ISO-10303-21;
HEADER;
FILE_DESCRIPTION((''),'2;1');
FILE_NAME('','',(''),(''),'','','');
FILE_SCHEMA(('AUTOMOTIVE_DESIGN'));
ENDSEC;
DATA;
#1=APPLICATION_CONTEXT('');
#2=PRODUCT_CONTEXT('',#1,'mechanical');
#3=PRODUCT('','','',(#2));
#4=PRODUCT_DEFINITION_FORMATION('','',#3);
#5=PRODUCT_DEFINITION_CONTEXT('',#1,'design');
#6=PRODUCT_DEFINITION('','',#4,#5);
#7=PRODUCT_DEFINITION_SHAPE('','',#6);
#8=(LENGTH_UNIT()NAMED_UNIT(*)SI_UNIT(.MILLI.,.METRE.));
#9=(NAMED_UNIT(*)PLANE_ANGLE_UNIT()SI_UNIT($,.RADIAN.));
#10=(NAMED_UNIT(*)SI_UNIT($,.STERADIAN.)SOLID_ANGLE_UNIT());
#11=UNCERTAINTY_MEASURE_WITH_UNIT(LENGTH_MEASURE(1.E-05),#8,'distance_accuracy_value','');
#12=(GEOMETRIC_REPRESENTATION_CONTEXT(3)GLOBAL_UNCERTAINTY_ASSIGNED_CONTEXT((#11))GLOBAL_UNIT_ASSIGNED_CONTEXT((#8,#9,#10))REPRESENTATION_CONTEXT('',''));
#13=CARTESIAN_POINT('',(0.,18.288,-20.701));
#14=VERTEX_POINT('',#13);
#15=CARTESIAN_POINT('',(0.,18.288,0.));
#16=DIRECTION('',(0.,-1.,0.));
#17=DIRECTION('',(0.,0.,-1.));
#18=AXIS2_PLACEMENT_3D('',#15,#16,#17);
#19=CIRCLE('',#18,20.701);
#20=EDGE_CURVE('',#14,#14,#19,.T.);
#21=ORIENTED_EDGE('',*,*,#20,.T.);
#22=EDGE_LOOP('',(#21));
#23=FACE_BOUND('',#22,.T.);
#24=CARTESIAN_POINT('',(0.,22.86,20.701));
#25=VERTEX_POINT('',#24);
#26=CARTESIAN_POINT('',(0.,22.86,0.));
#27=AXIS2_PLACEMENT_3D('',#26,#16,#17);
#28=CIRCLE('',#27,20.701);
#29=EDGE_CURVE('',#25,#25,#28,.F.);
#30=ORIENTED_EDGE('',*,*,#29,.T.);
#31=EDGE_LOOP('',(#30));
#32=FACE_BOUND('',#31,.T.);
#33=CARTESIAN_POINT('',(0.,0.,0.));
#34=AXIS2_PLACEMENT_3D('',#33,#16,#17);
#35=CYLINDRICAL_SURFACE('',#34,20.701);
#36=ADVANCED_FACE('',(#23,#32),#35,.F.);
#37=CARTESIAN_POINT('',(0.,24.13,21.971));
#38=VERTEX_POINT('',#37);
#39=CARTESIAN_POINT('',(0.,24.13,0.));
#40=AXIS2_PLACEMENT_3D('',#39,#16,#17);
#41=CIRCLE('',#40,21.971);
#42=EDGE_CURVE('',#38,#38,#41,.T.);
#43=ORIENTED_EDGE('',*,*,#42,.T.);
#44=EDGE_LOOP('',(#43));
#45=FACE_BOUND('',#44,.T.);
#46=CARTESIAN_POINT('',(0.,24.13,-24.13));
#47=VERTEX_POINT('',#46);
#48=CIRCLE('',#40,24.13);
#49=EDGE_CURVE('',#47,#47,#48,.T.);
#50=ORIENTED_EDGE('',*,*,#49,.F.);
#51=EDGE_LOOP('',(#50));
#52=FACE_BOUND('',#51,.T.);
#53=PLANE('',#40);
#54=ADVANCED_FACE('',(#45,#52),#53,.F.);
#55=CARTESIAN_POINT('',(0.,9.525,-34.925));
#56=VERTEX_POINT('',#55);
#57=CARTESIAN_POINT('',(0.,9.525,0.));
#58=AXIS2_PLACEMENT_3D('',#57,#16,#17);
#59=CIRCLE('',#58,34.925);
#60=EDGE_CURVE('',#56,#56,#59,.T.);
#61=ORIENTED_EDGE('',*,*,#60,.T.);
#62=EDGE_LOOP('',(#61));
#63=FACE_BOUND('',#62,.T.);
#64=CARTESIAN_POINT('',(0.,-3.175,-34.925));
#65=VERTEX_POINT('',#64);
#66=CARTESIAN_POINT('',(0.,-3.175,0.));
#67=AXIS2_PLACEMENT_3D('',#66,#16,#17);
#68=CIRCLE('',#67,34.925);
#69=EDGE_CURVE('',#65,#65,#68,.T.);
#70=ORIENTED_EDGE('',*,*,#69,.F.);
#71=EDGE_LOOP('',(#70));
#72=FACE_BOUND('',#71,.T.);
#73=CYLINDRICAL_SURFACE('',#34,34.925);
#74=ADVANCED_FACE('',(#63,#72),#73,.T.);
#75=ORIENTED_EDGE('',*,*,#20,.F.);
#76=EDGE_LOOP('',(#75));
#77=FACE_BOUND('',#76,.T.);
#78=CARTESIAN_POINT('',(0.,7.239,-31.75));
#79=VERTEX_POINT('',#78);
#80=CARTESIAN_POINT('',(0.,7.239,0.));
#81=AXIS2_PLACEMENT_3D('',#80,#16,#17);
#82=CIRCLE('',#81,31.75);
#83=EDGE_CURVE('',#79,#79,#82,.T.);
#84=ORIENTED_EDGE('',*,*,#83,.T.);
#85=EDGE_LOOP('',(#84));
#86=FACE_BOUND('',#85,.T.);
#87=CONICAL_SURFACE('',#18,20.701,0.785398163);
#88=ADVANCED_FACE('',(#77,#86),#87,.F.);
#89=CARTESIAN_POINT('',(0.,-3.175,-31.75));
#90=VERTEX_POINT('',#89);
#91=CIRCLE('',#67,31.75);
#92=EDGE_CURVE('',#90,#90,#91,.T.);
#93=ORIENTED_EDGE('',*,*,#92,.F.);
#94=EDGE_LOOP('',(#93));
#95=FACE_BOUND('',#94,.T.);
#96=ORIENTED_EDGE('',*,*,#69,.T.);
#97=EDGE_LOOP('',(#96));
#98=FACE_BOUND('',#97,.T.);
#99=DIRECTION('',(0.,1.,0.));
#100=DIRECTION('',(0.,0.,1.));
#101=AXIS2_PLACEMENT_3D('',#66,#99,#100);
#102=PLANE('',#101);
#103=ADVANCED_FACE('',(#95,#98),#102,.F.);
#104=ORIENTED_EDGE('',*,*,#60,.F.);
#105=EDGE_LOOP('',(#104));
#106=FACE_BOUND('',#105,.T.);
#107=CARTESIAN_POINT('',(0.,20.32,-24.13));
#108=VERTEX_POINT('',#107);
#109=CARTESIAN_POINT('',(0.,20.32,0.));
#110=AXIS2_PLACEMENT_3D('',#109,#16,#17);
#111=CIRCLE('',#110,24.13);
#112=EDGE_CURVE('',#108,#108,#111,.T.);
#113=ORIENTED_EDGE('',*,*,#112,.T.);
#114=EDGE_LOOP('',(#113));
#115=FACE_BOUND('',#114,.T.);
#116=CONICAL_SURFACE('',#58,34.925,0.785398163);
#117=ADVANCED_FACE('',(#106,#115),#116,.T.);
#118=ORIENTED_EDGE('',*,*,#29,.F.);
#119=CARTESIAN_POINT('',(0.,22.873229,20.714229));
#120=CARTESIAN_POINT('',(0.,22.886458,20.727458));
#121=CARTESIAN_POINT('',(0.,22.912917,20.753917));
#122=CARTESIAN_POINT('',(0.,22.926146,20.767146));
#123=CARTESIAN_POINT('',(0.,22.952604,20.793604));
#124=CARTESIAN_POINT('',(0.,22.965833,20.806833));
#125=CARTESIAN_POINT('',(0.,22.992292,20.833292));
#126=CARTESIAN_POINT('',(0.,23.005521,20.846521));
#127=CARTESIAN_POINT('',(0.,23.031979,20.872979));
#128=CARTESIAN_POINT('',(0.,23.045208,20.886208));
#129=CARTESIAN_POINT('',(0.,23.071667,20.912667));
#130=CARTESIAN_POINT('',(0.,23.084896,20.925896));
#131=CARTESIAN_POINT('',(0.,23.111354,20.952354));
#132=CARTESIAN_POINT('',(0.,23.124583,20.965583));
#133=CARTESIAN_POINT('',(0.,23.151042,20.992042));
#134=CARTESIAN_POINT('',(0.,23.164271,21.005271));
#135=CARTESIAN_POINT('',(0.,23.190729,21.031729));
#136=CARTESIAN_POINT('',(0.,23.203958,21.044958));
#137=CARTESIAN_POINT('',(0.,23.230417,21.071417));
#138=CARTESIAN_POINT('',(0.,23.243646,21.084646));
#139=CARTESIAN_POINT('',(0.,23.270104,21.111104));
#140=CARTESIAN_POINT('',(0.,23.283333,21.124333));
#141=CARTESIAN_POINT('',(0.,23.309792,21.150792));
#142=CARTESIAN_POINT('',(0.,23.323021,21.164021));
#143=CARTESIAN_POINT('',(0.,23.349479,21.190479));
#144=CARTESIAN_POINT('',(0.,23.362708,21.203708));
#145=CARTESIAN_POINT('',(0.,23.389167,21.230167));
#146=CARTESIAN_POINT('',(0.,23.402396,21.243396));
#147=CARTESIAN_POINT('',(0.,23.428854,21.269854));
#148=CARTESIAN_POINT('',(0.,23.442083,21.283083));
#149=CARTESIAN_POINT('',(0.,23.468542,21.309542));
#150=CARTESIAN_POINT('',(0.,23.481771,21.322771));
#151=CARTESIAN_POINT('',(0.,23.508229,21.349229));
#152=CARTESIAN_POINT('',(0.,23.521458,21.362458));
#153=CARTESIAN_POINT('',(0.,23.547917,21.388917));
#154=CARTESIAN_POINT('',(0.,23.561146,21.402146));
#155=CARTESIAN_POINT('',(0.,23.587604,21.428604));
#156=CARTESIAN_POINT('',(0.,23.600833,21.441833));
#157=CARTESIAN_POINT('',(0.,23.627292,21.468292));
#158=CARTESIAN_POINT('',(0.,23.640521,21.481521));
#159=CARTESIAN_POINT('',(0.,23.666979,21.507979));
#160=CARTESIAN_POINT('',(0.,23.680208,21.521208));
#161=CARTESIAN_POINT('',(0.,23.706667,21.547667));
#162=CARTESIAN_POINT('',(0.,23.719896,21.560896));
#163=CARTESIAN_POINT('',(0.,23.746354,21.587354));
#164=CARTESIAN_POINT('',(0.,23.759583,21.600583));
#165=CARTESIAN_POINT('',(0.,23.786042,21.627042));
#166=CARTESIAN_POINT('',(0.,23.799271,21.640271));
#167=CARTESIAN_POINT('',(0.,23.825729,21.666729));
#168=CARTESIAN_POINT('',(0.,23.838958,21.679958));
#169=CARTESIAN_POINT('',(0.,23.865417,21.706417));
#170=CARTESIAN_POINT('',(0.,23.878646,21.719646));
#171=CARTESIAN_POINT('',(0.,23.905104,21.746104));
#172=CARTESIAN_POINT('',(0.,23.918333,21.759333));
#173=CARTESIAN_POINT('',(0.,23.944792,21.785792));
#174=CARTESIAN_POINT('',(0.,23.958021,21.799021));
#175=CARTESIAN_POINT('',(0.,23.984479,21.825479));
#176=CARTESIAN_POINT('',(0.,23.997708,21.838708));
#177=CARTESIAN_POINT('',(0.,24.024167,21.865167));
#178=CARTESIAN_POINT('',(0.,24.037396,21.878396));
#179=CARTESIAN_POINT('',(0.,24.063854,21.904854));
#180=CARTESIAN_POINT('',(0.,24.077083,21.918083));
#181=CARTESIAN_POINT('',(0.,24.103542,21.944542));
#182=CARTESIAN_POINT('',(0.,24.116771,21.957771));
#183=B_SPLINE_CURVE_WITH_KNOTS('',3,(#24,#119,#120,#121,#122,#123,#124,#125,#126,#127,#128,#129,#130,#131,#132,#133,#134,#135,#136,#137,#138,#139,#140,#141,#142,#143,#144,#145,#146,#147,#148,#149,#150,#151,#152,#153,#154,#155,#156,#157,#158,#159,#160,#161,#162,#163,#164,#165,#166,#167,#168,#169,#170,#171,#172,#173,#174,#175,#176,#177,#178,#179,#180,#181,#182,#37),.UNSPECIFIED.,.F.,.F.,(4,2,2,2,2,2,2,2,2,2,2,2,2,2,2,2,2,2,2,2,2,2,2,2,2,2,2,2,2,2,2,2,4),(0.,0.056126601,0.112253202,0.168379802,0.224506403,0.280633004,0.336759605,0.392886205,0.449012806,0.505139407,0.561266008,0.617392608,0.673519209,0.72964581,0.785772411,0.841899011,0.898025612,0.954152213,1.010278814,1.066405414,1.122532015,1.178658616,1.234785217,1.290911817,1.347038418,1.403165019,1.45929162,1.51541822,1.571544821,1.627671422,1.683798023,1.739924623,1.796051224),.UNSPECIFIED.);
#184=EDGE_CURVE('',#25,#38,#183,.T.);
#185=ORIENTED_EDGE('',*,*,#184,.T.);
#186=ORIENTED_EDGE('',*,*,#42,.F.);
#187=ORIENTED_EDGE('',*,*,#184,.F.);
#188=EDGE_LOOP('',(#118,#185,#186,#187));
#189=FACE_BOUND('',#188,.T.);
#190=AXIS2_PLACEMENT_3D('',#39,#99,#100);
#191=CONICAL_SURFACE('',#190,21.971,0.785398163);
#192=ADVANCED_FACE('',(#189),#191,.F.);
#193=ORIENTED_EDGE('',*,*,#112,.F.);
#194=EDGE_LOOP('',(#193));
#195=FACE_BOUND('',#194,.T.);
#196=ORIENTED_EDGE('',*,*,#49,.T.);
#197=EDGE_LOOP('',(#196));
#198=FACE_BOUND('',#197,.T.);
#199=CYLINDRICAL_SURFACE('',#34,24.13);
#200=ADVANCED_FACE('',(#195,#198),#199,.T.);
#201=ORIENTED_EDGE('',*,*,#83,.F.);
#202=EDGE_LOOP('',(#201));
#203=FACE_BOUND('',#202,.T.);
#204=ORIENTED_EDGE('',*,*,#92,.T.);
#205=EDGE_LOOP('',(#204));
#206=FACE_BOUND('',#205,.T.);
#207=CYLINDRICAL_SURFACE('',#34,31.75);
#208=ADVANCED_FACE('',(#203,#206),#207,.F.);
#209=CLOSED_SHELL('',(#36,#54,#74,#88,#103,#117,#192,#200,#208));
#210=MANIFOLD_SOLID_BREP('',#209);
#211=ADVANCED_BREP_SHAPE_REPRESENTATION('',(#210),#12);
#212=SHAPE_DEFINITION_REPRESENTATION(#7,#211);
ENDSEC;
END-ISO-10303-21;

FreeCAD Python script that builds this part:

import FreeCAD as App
import Part
import Sketcher

V = App.Vector
Q = App.Units.Quantity


def edges_at(feature, points):
    """Names of the edges that pass closest to the given points."""
    edges = feature.Shape.Edges
    near = lambda p: min(range(len(edges)), key=lambda i: edges[i].distToShape(Part.Vertex(*p))[0])
    return sorted({f"Edge{near(p) + 1}" for p in points})


def add_polygon(sketch, points):
    """Adds a closed chain of lines whose ends are joined by coincident constraints."""
    first, n = sketch.GeometryCount, len(points)
    for a, b in zip(points, points[1:] + points[:1]):
        sketch.addGeometry(Part.LineSegment(App.Vector(*a, 0), App.Vector(*b, 0)), False)
    for i in range(n):
        sketch.addConstraint(Sketcher.Constraint("Coincident", first + i, 2, first + (i + 1) % n, 1))

doc = App.newDocument("Part")
body = doc.addObject("PartDesign::Body", "Body")

# Sketch on XY plane
sketch1 = doc.addObject("Sketcher::SketchObject", "Sketch")
body.addObject(sketch1)
sketch1.AttachmentSupport = (doc.XY_Plane, [""])
sketch1.MapMode = "FlatFace"
add_polygon(sketch1, [(34.9, 9.5), (24.1, 20.3), (24.1, 24.1), (20.7, 24.1), (20.7, 18.3), (31.8, 7.2), (31.8, -3.2), (34.9, -3.2)])  # lines 0-7
sketch1.addConstraint(Sketcher.Constraint("Vertical", 1))
sketch1.addConstraint(Sketcher.Constraint("Horizontal", 2))
sketch1.addConstraint(Sketcher.Constraint("Vertical", 3))
sketch1.addConstraint(Sketcher.Constraint("Vertical", 5))
sketch1.addConstraint(Sketcher.Constraint("Horizontal", 6))
sketch1.addConstraint(Sketcher.Constraint("Vertical", 7))
sketch1.addConstraint(Sketcher.Constraint("Parallel", 0, 4))
sketch1.addConstraint(Sketcher.Constraint("DistanceY", 7, 1, 7, 2, Q("0.5 in")))
sketch1.addConstraint(Sketcher.Constraint("Angle", 0, Q("135 deg")))
sketch1.addConstraint(Sketcher.Constraint("DistanceY", 1, 1, 1, 2, Q("0.15 in")))
sketch1.addConstraint(Sketcher.Constraint("DistanceY", 3, 2, 3, 1, Q("0.23 in")))
sketch1.addConstraint(Sketcher.Constraint("DistanceY", 5, 2, 5, 1, Q("0.41 in")))
sketch1.addConstraint(Sketcher.Constraint("DistanceY", -1, 1, 0, 2, Q("0.8 in")))
sketch1.addConstraint(Sketcher.Constraint("DistanceX", 0, 2, 4, 2, Q("0.3 in")))
sketch1.addConstraint(Sketcher.Constraint("DistanceX", 2, 2, 2, 1, Q("0.135 in")))
sketch1.addConstraint(Sketcher.Constraint("DistanceX", -1, 1, 0, 2, Q("0.95 in")))
revolution = doc.addObject("PartDesign::Revolution", "Revolution")
body.addObject(revolution)
revolution.Profile = sketch1
revolution.ReferenceAxis = (sketch1, ["V_Axis"])
revolution.Angle = 360
doc.recompute()

chamfer = doc.addObject("PartDesign::Chamfer", "Chamfer")
body.addObject(chamfer)
chamfer.Base = (revolution, edges_at(revolution, [(0, 24.13, 20.701)]))
chamfer.Size = Q("0.05 in")

doc.recompute()
